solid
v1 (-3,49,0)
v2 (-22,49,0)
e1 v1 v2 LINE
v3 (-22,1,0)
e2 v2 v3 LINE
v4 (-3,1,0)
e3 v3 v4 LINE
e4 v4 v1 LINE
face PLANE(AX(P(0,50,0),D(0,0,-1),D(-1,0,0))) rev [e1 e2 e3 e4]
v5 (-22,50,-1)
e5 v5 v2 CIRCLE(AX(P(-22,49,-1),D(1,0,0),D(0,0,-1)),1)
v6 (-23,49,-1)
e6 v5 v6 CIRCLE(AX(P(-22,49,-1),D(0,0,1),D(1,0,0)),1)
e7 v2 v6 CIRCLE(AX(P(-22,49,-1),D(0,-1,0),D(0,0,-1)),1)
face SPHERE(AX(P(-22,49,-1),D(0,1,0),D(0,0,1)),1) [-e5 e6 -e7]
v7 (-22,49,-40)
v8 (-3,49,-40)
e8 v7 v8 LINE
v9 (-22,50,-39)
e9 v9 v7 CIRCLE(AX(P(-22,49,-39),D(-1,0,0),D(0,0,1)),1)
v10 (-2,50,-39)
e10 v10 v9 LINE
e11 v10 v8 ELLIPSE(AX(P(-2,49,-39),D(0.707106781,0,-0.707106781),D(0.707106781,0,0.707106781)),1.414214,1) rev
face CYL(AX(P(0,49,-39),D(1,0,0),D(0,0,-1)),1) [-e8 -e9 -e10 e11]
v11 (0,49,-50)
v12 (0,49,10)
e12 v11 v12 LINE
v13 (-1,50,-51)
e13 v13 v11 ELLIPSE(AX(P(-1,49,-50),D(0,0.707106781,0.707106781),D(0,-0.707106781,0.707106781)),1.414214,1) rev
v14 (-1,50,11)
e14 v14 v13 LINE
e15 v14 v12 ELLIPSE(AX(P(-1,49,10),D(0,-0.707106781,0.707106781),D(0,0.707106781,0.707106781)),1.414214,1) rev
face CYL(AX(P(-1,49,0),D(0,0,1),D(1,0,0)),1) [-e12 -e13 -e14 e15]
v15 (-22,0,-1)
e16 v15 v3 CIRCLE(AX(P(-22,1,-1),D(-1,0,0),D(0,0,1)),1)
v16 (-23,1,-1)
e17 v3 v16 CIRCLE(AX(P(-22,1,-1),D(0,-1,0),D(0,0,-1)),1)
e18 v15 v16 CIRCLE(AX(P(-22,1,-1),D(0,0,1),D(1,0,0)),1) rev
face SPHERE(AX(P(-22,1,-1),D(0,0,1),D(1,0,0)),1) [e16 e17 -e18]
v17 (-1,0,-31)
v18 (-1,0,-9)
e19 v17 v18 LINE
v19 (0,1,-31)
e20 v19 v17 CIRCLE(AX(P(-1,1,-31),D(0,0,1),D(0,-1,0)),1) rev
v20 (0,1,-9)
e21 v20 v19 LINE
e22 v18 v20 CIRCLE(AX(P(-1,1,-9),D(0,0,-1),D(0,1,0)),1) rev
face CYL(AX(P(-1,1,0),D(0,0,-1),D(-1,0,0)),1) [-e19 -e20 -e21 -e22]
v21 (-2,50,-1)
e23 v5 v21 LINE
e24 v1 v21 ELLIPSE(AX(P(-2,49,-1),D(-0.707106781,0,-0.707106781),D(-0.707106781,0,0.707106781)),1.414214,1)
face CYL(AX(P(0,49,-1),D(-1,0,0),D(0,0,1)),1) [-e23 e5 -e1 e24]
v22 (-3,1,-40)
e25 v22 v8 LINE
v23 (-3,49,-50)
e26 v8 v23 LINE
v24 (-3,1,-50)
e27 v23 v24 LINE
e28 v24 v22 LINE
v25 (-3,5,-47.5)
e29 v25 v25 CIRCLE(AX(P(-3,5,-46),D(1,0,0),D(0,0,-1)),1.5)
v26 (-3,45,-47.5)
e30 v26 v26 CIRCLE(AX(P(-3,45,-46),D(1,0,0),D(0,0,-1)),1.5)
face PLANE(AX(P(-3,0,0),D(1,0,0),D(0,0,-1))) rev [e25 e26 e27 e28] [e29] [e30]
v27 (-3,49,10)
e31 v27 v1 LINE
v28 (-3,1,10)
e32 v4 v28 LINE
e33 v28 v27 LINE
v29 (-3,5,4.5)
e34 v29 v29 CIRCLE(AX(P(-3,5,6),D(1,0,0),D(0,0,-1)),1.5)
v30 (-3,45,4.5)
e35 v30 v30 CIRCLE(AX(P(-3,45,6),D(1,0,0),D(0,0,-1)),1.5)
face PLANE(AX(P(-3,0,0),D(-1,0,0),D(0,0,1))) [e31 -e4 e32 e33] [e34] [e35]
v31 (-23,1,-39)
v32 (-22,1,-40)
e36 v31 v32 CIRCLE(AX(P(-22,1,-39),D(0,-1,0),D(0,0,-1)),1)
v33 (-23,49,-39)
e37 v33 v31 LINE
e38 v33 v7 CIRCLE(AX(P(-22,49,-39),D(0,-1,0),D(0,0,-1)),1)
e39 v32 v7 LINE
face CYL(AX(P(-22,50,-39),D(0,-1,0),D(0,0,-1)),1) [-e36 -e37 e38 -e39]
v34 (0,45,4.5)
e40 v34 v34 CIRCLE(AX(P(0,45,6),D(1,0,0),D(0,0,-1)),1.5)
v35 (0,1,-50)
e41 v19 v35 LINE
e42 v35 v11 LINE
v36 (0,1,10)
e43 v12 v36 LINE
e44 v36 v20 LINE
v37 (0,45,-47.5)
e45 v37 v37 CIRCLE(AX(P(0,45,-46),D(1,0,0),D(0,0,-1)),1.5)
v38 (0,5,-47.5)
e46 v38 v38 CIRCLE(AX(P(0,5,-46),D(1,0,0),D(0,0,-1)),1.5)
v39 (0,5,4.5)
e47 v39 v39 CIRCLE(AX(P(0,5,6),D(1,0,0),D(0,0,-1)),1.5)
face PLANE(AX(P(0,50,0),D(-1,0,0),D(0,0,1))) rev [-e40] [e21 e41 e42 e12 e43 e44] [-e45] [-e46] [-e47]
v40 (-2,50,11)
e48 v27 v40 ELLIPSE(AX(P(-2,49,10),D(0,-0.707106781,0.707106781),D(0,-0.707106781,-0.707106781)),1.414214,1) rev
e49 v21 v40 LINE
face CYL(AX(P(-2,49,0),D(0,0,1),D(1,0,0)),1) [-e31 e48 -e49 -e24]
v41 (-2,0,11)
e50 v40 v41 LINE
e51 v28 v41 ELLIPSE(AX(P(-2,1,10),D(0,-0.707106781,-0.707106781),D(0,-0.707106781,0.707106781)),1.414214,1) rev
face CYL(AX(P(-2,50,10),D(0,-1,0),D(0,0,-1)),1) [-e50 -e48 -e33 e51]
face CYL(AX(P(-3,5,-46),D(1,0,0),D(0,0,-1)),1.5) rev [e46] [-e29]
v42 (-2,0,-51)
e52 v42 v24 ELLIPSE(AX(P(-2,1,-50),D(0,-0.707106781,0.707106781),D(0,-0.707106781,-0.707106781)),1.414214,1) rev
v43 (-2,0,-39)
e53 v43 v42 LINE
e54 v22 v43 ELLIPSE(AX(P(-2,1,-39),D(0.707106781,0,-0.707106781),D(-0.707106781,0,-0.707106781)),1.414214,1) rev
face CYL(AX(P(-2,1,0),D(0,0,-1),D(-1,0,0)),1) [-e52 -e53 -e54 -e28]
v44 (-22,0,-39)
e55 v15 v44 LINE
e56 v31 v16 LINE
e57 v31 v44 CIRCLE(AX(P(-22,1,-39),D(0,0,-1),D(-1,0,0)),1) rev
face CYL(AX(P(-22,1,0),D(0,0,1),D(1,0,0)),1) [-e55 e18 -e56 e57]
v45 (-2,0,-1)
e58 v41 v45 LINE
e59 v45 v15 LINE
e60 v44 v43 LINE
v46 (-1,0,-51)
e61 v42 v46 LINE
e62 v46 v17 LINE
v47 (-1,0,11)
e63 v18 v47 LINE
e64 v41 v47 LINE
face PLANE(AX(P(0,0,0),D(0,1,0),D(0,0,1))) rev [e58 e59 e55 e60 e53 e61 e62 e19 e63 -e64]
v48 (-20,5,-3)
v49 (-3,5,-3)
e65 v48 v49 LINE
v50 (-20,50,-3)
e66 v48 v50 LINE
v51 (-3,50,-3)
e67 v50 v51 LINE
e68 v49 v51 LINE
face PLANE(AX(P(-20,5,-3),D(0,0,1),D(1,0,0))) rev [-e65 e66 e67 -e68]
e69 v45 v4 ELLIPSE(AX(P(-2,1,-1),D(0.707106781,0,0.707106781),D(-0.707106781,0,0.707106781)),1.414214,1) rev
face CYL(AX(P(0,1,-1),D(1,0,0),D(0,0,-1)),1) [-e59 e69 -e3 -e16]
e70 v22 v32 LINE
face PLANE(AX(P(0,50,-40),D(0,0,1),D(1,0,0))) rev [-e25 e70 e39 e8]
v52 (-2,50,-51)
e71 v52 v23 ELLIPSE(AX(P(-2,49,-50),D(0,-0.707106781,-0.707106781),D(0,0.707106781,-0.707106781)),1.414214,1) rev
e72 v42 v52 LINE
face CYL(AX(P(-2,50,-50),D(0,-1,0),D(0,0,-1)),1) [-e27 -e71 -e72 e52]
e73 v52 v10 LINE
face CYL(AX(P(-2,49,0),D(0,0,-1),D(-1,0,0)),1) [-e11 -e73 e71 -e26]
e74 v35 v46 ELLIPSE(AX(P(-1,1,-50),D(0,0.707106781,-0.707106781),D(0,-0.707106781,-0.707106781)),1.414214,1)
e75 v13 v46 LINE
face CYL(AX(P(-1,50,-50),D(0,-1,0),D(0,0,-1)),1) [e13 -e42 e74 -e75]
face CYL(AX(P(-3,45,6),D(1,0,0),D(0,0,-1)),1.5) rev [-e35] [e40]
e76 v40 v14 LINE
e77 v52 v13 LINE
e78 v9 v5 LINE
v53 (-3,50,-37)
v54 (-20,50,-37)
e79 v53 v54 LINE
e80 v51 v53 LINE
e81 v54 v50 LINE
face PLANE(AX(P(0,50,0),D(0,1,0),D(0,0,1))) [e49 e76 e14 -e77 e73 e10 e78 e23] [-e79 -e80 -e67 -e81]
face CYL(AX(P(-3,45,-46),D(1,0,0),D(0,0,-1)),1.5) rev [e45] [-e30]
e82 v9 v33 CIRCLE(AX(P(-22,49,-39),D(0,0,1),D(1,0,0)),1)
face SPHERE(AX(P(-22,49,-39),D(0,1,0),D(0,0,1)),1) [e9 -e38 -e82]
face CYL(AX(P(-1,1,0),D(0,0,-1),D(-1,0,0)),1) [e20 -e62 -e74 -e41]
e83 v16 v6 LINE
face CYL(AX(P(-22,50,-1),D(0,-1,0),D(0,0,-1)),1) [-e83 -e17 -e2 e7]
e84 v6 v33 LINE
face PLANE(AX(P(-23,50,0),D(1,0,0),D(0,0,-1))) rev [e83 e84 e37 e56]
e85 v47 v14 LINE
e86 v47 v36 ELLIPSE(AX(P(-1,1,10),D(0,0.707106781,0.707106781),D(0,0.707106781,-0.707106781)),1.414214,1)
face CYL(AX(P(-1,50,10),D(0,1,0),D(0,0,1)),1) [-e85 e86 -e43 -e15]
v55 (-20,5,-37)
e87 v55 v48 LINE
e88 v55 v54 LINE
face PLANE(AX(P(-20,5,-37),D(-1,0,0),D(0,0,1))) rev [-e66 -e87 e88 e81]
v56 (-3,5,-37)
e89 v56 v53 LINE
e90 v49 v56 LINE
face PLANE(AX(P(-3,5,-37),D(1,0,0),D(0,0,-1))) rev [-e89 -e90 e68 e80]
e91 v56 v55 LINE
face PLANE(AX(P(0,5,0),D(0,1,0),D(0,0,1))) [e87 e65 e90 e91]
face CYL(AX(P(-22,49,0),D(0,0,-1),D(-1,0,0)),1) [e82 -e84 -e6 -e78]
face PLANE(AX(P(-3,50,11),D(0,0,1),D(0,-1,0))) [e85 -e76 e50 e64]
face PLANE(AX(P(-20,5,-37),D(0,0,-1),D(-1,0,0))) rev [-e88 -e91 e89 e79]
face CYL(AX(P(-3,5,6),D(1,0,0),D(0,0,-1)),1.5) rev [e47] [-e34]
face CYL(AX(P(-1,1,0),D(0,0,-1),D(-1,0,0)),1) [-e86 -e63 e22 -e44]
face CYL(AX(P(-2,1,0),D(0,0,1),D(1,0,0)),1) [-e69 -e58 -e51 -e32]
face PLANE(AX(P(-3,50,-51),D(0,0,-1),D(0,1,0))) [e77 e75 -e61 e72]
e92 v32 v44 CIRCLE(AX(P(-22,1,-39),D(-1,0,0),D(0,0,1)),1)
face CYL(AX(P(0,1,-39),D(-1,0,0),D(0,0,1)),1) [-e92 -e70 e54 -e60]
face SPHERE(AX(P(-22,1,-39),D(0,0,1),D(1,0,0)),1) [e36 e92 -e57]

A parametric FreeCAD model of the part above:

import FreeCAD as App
import Part
import Sketcher
Q = App.Units.Quantity


def edges_at(feature, points):
    """Names of the edges that pass closest to the given points."""
    edges = feature.Shape.Edges
    near = lambda p: min(range(len(edges)), key=lambda i: edges[i].distToShape(Part.Vertex(*p))[0])
    return sorted({f"Edge{near(p) + 1}" for p in points})


def add_polygon(sketch, points):
    """Adds a closed chain of lines whose ends are joined by coincident constraints."""
    first, n = sketch.GeometryCount, len(points)
    for a, b in zip(points, points[1:] + points[:1]):
        sketch.addGeometry(Part.LineSegment(App.Vector(*a, 0), App.Vector(*b, 0)), False)
    for i in range(n):
        sketch.addConstraint(Sketcher.Constraint("Coincident", first + i, 2, first + (i + 1) % n, 1))

doc = App.newDocument("Part")
body = doc.addObject("PartDesign::Body", "Body")

sketch1 = body.newObject("Sketcher::SketchObject", "Sketch")
sketch1.AttachmentSupport = (doc.getObject("XZ_Plane"), [""])
sketch1.MapMode = "FlatFace"
add_polygon(sketch1, [(-23, -40), (-23, 0), (0, 0), (0, -40)])
sketch1.addConstraint([
    Sketcher.Constraint("Vertical", 0),
    Sketcher.Constraint("Horizontal", 1),
    Sketcher.Constraint("Vertical", 2),
    Sketcher.Constraint("Horizontal", 3),
    Sketcher.Constraint("Coincident", 1, 2, -1, 1),
    Sketcher.Constraint("DistanceX", 1, 1, 1, 2, Q("23 mm")),
    Sketcher.Constraint("DistanceY", 0, 1, 0, 2, Q("40 mm")),
])
pad1 = body.newObject("PartDesign::Pad", "Pad")
pad1.Profile = sketch1
pad1.Length = 50
pad1.Reversed = True

sketch2 = body.newObject("Sketcher::SketchObject", "Sketch001")
sketch2.AttachmentSupport = (doc.getObject("XZ_Plane"), [""])
sketch2.MapMode = "FlatFace"
sketch2.AttachmentOffset = App.Placement(App.Vector(0, 0, -50), App.Rotation())
add_polygon(sketch2, [(-20, -37), (-20, -3), (-3, -3), (-3, -37)])
sketch2.addConstraint([
    Sketcher.Constraint("Vertical", 0),
    Sketcher.Constraint("Horizontal", 1),
    Sketcher.Constraint("Vertical", 2),
    Sketcher.Constraint("Horizontal", 3),
    Sketcher.Constraint("DistanceX", 1, 1, 1, 2, Q("17 mm")),
    Sketcher.Constraint("DistanceY", 0, 1, 0, 2, Q("34 mm")),
    Sketcher.Constraint("DistanceX", 0, 2, -1, 1, Q("20 mm")),
    Sketcher.Constraint("DistanceY", 0, 2, -1, 1, Q("3 mm")),
])
pocket1 = body.newObject("PartDesign::Pocket", "Pocket")
pocket1.Profile = sketch2
pocket1.Length = 45
pocket1.Reversed = True
doc.recompute()

fillet = body.newObject("PartDesign::Fillet", "Fillet")
fillet.Base = (pocket1, edges_at(pocket1, [
    (-11.5, 0, 0),
    (-23, 0, -20),
    (-11.5, 0, -40),
    (0, 0, -20),
    (0, 25, 0),
    (-23, 25, 0),
    (-23, 25, -40),
    (0, 25, -40),
]))
fillet.Radius = 1

sketch3 = body.newObject("Sketcher::SketchObject", "Sketch002")
sketch3.AttachmentSupport = (doc.getObject("YZ_Plane"), [""])
sketch3.MapMode = "FlatFace"
add_polygon(sketch3, [(50, 11), (0, 11), (0, -9), (50, -9)])
sketch3.addGeometry(Part.Circle(App.Vector(5, 6, 0), App.Vector(0, 0, 1), 1.5), False)
sketch3.addGeometry(Part.Circle(App.Vector(45, 6, 0), App.Vector(0, 0, 1), 1.5), False)
add_polygon(sketch3, [(50, -31), (0, -31), (0, -51), (50, -51)])
sketch3.addGeometry(Part.Circle(App.Vector(5, -46, 0), App.Vector(0, 0, 1), 1.5), False)
sketch3.addGeometry(Part.Circle(App.Vector(45, -46, 0), App.Vector(0, 0, 1), 1.5), False)
sketch3.addConstraint([
    Sketcher.Constraint("Horizontal", 0),
    Sketcher.Constraint("Vertical", 1),
    Sketcher.Constraint("Horizontal", 2),
    Sketcher.Constraint("Vertical", 3),
    Sketcher.Constraint("Horizontal", 6),
    Sketcher.Constraint("Vertical", 7),
    Sketcher.Constraint("Horizontal", 8),
    Sketcher.Constraint("Vertical", 9),
    Sketcher.Constraint("Equal", 4, 5),
    Sketcher.Constraint("Equal", 5, 10),
    Sketcher.Constraint("Equal", 10, 11),
    Sketcher.Constraint("PointOnObject", 0, 2, -2),
    Sketcher.Constraint("PointOnObject", 6, 2, -2),
    Sketcher.Constraint("Horizontal", 4, 3, 5, 3),
    Sketcher.Constraint("Horizontal", 10, 3, 11, 3),
    Sketcher.Constraint("Vertical", 4, 3, 10, 3),
    Sketcher.Constraint("Vertical", 5, 3, 11, 3),
    Sketcher.Constraint("Vertical", 3, 2, 8, 2),
    Sketcher.Constraint("Equal", 3, 7),
    Sketcher.Constraint("Diameter", 4, Q("3 mm")),
    Sketcher.Constraint("DistanceX", 0, 2, 0, 1, Q("50 mm")),
    Sketcher.Constraint("DistanceY", 1, 2, 1, 1, Q("20 mm")),
    Sketcher.Constraint("DistanceX", -1, 1, 4, 3, Q("5 mm")),
    Sketcher.Constraint("DistanceY", -1, 1, 4, 3, Q("6 mm")),
    Sketcher.Constraint("DistanceX", -1, 1, 5, 3, Q("45 mm")),
    Sketcher.Constraint("DistanceY", 10, 3, -1, 1, Q("46 mm")),
    Sketcher.Constraint("DistanceY", -1, 1, 0, 2, Q("11 mm")),
    Sketcher.Constraint("DistanceY", 6, 2, -1, 1, Q("31 mm")),
])
pad2 = body.newObject("PartDesign::Pad", "Pad001")
pad2.Profile = sketch3
pad2.Length = 3
pad2.Reversed = True
doc.recompute()

fillet2 = body.newObject("PartDesign::Fillet", "Fillet001")
fillet2.Base = (pad2, edges_at(pad2, [
    (-12.5, 50, 0),
    (-22.707, 50, -0.293),
    (-23, 50, -20),
    (-22.707, 50, -39.707),
    (-12.5, 50, -40),
    (-3, 0, -45),
    (-3, 25, -51),
    (-3, 50, -45.5),
    (0, 25, -51),
    (0, 0, -41),
    (0, 0, 1),
    (0, 25, 11),
    (-3, 25, 11),
    (0, 50, -20),
    (-3, 50, 5.5),
    (-3, 0, 5),
]))
fillet2.Radius = 1

doc.recompute()
